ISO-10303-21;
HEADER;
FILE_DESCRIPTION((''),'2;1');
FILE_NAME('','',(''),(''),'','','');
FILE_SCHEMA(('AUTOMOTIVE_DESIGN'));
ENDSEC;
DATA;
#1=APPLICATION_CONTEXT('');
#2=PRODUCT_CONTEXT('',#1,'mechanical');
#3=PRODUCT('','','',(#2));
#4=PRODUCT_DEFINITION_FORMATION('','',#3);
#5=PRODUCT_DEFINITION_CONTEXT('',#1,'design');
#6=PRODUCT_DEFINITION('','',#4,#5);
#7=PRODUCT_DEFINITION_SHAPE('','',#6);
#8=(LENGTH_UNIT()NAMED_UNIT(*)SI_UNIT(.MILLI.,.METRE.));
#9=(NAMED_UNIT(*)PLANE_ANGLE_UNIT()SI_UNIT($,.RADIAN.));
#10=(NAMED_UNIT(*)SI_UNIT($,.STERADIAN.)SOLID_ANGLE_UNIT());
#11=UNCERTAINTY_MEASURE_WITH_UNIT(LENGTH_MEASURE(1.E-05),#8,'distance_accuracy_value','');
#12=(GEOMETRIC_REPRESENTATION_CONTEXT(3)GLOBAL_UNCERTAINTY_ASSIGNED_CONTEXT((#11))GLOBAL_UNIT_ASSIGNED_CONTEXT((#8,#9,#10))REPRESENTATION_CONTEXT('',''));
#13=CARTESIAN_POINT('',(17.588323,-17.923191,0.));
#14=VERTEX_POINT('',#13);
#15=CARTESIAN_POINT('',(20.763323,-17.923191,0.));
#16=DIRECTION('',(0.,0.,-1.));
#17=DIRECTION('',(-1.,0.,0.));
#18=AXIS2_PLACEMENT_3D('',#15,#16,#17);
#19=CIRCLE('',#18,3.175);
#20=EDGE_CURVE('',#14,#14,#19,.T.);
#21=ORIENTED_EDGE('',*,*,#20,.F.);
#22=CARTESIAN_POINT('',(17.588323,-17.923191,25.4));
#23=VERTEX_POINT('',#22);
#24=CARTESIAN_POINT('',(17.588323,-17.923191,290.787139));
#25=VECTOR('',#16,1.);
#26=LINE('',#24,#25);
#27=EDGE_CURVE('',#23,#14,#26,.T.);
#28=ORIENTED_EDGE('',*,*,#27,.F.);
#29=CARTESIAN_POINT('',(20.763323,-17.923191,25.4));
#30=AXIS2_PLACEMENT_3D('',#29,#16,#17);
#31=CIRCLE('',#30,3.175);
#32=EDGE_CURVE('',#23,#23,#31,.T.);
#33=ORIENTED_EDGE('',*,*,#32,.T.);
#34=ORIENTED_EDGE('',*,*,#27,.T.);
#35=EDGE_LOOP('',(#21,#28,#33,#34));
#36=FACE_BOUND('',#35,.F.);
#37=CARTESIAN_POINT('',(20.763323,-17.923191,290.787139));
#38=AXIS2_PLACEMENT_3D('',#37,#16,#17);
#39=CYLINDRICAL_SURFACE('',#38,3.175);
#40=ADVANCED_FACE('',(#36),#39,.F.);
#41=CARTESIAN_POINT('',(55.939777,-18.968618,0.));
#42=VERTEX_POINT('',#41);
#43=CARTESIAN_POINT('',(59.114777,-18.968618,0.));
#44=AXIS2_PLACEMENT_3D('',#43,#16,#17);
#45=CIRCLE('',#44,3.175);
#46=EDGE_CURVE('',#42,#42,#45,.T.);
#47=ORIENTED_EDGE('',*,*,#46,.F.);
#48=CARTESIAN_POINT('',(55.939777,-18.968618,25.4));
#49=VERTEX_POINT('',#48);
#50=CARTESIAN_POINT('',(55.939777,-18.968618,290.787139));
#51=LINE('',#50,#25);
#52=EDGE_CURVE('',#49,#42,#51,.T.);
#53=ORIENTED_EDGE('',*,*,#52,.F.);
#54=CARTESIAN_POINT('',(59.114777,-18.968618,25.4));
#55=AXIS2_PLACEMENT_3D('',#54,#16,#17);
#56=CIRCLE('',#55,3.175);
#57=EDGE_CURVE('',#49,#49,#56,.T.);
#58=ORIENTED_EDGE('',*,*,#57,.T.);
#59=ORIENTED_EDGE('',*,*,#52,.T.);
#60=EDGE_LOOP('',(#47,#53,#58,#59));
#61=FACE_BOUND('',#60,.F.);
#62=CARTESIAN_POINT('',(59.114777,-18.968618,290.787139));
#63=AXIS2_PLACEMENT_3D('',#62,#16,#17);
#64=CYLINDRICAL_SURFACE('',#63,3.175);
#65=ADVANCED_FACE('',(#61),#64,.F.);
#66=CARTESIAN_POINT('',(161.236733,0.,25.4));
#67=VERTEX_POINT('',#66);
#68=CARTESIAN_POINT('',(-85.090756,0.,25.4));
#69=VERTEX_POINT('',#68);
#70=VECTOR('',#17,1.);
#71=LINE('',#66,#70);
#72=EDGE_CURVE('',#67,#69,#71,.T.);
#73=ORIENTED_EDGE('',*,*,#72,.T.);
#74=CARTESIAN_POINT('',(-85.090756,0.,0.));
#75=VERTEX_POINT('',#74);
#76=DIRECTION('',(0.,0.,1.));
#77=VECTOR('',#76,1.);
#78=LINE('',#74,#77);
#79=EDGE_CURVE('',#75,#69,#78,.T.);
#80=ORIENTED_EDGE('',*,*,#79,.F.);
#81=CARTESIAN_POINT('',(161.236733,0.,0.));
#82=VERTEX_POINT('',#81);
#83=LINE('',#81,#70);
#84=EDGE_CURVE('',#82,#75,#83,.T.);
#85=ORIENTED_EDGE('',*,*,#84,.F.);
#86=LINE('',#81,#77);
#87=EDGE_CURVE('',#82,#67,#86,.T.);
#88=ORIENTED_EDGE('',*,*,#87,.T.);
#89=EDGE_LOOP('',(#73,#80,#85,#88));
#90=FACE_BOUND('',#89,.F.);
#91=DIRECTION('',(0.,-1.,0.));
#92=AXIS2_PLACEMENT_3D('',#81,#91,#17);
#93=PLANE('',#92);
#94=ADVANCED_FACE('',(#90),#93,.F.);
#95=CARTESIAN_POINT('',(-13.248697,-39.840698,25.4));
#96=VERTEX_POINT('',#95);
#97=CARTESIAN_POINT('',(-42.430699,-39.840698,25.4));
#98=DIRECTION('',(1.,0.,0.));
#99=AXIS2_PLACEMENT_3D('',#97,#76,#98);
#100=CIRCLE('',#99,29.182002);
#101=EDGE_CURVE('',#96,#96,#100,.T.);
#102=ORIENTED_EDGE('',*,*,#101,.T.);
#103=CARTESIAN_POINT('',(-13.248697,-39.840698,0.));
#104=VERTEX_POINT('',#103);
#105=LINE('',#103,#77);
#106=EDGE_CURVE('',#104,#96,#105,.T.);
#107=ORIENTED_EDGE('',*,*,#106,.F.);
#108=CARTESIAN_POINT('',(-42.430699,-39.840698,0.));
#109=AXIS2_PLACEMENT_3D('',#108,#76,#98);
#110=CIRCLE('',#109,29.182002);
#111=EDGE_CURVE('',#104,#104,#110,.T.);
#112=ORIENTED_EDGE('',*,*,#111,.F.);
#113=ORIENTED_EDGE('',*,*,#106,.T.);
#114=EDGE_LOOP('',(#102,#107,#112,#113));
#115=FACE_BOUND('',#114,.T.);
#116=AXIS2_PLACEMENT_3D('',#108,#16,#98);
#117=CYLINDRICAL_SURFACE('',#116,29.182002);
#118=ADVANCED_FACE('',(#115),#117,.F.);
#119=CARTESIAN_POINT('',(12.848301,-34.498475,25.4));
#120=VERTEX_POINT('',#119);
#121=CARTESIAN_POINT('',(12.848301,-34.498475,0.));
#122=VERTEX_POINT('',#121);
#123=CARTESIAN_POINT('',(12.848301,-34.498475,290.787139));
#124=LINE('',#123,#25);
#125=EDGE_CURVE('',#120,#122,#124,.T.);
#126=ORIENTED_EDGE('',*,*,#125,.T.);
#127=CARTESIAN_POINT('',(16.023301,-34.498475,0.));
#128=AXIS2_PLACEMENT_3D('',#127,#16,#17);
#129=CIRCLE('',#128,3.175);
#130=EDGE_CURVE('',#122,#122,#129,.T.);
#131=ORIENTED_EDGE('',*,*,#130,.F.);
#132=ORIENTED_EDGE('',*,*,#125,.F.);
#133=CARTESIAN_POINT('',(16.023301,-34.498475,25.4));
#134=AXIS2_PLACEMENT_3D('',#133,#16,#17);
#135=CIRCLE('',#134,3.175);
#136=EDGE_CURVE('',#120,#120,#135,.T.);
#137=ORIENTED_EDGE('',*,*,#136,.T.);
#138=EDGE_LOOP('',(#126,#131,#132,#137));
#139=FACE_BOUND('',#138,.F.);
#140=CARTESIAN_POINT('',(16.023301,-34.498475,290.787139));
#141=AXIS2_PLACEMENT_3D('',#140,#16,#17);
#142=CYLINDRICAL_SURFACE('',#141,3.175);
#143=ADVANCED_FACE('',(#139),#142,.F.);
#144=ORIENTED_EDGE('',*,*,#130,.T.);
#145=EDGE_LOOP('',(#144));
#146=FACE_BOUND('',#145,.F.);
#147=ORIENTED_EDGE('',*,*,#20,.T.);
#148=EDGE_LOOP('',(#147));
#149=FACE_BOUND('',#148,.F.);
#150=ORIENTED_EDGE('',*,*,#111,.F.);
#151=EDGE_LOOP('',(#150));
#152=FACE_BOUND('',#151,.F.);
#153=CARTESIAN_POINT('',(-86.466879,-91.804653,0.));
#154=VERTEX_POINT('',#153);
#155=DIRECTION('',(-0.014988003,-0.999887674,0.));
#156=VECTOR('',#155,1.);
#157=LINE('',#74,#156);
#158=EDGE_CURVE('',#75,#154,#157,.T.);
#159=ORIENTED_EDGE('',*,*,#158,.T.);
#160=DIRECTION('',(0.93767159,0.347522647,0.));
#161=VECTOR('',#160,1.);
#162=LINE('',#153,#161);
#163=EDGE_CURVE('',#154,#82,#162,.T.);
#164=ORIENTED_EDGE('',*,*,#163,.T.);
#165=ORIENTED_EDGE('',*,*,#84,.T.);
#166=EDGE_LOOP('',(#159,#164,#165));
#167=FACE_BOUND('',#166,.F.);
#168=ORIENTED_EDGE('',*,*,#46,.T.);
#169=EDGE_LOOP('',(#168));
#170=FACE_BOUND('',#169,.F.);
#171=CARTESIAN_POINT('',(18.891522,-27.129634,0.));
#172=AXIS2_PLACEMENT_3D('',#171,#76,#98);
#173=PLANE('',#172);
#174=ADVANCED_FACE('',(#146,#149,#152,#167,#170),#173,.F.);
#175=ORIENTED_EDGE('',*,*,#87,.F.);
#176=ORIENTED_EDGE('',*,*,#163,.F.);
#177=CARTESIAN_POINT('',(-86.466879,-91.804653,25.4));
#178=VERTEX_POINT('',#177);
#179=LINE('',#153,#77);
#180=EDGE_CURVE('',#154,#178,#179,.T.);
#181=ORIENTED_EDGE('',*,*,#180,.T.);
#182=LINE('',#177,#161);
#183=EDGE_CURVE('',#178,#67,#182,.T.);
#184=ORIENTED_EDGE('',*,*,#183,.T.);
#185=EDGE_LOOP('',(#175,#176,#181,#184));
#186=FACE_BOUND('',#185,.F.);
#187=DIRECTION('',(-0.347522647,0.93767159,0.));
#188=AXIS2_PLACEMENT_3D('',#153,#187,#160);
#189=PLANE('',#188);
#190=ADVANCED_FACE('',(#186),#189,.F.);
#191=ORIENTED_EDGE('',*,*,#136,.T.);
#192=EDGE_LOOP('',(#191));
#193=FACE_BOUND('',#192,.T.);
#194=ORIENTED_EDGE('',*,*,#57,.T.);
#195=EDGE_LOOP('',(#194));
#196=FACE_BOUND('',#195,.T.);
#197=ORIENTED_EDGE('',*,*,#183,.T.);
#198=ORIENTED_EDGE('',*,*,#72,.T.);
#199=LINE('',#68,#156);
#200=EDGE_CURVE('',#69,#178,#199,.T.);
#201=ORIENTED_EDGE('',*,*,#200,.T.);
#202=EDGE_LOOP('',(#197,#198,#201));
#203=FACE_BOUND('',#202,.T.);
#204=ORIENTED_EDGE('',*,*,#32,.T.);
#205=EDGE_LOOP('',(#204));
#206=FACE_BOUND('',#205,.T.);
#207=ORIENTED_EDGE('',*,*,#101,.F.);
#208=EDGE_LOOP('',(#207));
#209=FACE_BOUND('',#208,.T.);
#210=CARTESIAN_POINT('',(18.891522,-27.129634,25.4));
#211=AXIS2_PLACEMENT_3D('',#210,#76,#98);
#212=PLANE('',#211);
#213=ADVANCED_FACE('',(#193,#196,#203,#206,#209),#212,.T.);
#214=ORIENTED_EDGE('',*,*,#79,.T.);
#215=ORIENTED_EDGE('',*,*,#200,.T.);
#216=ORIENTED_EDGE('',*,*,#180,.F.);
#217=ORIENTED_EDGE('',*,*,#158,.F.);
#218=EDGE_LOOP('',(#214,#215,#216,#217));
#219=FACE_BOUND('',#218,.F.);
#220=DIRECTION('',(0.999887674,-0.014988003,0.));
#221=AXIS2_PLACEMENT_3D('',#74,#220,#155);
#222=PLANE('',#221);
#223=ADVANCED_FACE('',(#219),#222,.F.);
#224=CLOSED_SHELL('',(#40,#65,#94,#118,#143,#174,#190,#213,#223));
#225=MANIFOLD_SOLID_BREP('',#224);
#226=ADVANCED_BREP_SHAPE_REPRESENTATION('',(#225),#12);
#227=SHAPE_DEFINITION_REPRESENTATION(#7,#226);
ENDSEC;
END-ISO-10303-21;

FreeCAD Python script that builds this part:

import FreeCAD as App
import Part
import Sketcher
from FreeCAD import Vector
Q = App.Units.Quantity


def add_polygon(sketch, points):
    """Adds a closed chain of lines whose ends are joined by coincident constraints."""
    first, n = sketch.GeometryCount, len(points)
    for a, b in zip(points, points[1:] + points[:1]):
        sketch.addGeometry(Part.LineSegment(App.Vector(*a, 0), App.Vector(*b, 0)), False)
    for i in range(n):
        sketch.addConstraint(Sketcher.Constraint("Coincident", first + i, 2, first + (i + 1) % n, 1))

doc = App.newDocument("Part")
body = doc.addObject("PartDesign::Body", "Body")

sketch1 = body.newObject("Sketcher::SketchObject", "Sketch")
sketch1.AttachmentSupport = (doc.getObject("XY_Plane"), [""])
sketch1.MapMode = "FlatFace"
add_polygon(sketch1, [(161, 0), (-85, 0), (-86, -92)])
sketch1.addGeometry(Part.Circle(Vector(-42, -40, 0), Vector(0, 0, 1), 29), False)
sketch1.addConstraint(Sketcher.Constraint("Horizontal", 0))
sketch1.addConstraint(Sketcher.Constraint("PointOnObject", 0, 2, -1))
sketch1.addConstraint(Sketcher.Constraint("Diameter", 3, 58.364004))
sketch1.addConstraint(Sketcher.Constraint("DistanceX", 3, 3, -1, 1, Q("1.6705 in")))
sketch1.addConstraint(Sketcher.Constraint("DistanceX", 0, 2, 0, 1, 246.327489))
sketch1.addConstraint(Sketcher.Constraint("DistanceY", 3, 3, -1, 1, 39.840698))
sketch1.addConstraint(Sketcher.Constraint("DistanceX", 1, 2, -1, 1, 86.466879))
sketch1.addConstraint(Sketcher.Constraint("DistanceX", 3, 3, 2, 2, 203.667432))
sketch1.addConstraint(Sketcher.Constraint("Distance", 1, 91.814966))
pad1 = body.newObject("PartDesign::Pad", "Pad")
pad1.Profile = sketch1
pad1.Length = Q("1 in")

sketch2 = body.newObject("Sketcher::SketchObject", "Sketch001")
sketch2.AttachmentSupport = (doc.getObject("XY_Plane"), [""])
sketch2.MapMode = "FlatFace"
sketch2.AttachmentOffset = App.Placement(Vector(0, 0, 1 * 25.4), App.Rotation())
sketch2.addGeometry(Part.Circle(Vector(20.8, -17.9, 0), Vector(0, 0, 1), 3.2), False)
sketch2.addGeometry(Part.Circle(Vector(16, -34.5, 0), Vector(0, 0, 1), 3.2), False)
sketch2.addGeometry(Part.Circle(Vector(59.1, -19, 0), Vector(0, 0, 1), 3.2), False)
sketch2.addConstraint(Sketcher.Constraint("Equal", 0, 1))
sketch2.addConstraint(Sketcher.Constraint("Equal", 1, 2))
sketch2.addConstraint(Sketcher.Constraint("Diameter", 0, Q("0.25 in")))
sketch2.addConstraint(Sketcher.Constraint("DistanceX", -1, 1, 1, 3, 16.023301))
sketch2.addConstraint(Sketcher.Constraint("DistanceY", 0, 3, -1, 1, 17.923191))
sketch2.addConstraint(Sketcher.Constraint("DistanceX", 1, 3, 0, 3, 4.740022))
sketch2.addConstraint(Sketcher.Constraint("DistanceY", 1, 3, -1, 1, 34.498475))
sketch2.addConstraint(Sketcher.Constraint("DistanceX", -1, 1, 2, 3, 59.114777))
sketch2.addConstraint(Sketcher.Constraint("DistanceY", 2, 3, -1, 1, 18.968618))
doc.recompute()
hole = body.newObject("PartDesign::Hole", "Hole")
hole.Profile = sketch2
hole.ThreadType = "None"
hole.Diameter = Q("0.25 in")
hole.DepthType = "ThroughAll"

doc.recompute()
